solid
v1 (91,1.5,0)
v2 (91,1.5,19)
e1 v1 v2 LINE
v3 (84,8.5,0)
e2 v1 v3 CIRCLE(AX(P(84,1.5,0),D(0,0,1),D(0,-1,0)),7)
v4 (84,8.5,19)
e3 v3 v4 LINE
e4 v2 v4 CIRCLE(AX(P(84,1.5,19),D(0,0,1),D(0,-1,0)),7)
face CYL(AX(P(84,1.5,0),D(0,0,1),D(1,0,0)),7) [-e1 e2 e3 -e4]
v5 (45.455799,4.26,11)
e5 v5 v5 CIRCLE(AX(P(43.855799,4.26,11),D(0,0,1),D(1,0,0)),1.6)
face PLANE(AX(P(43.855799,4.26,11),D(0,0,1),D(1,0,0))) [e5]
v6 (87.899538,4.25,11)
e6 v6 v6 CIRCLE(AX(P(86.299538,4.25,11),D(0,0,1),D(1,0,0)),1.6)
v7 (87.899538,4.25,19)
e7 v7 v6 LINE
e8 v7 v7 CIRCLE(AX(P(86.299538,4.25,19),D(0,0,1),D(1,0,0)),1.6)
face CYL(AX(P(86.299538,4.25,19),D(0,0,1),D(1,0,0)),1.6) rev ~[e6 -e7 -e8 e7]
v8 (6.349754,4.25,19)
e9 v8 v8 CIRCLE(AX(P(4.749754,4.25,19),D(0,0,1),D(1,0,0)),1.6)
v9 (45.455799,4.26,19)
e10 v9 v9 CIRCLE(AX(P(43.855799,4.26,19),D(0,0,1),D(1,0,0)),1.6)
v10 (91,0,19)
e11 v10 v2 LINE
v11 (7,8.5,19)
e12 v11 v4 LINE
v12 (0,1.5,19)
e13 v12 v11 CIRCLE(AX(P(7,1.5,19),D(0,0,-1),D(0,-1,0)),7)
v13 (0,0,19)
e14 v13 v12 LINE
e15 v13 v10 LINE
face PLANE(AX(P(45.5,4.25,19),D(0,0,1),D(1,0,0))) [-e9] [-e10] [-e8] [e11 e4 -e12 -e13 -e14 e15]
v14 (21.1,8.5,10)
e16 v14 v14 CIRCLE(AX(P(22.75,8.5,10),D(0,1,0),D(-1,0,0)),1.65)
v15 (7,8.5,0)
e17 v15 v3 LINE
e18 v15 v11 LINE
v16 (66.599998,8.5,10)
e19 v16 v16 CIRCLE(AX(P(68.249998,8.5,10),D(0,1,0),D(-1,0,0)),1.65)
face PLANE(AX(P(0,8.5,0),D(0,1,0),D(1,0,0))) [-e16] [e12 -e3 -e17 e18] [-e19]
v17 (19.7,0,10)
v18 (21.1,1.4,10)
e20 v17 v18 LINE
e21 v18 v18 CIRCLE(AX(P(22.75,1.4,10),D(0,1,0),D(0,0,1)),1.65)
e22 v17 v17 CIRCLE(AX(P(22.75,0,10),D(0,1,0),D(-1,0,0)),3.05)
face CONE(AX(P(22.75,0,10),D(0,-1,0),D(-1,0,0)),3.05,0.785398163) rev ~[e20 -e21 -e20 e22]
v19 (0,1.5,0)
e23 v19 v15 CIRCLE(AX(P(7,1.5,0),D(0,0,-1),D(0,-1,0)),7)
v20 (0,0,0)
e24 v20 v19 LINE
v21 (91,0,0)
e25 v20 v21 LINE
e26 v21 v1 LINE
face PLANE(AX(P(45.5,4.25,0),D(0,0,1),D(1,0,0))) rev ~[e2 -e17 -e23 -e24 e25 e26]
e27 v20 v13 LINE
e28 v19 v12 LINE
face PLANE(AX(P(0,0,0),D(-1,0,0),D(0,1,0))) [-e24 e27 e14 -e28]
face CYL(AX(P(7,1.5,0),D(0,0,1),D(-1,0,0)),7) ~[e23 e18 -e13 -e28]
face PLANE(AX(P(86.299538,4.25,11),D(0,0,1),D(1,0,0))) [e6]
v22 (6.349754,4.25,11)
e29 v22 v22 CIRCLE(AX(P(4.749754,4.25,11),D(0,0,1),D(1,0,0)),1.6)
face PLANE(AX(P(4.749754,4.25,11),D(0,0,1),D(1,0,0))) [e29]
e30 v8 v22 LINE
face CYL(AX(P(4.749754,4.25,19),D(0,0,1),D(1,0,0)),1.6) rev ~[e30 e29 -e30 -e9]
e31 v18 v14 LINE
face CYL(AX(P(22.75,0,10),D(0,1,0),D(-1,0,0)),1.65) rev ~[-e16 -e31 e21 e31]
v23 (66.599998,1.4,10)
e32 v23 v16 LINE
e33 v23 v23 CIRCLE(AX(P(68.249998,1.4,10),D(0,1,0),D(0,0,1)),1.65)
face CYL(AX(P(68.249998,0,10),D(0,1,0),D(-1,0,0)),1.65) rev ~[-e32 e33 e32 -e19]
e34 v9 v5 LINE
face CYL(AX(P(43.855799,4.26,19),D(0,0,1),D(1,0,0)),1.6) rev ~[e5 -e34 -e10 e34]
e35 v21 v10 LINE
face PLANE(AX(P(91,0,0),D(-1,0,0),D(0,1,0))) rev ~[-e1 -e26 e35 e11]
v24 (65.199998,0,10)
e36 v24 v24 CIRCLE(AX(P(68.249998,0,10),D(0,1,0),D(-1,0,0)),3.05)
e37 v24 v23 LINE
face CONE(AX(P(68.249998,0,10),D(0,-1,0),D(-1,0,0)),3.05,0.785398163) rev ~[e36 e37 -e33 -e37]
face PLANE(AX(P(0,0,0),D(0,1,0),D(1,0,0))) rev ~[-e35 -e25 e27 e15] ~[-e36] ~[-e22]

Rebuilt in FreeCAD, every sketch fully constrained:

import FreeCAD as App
import Part
import Sketcher
from FreeCAD import Vector
Q = App.Units.Quantity


def edges_at(feature, points):
    """Names of the edges that pass closest to the given points."""
    edges = feature.Shape.Edges
    near = lambda p: min(range(len(edges)), key=lambda i: edges[i].distToShape(Part.Vertex(*p))[0])
    return sorted({f"Edge{near(p) + 1}" for p in points})


def add_polygon(sketch, points):
    """Adds a closed chain of lines whose ends are joined by coincident constraints."""
    first, n = sketch.GeometryCount, len(points)
    for a, b in zip(points, points[1:] + points[:1]):
        sketch.addGeometry(Part.LineSegment(App.Vector(*a, 0), App.Vector(*b, 0)), False)
    for i in range(n):
        sketch.addConstraint(Sketcher.Constraint("Coincident", first + i, 2, first + (i + 1) % n, 1))

doc = App.newDocument("Part")
body = doc.addObject("PartDesign::Body", "Body")

# Sketch on XY plane
sketch1 = doc.addObject("Sketcher::SketchObject", "Sketch")
body.addObject(sketch1)
sketch1.AttachmentSupport = (doc.XY_Plane, [""])
sketch1.MapMode = "FlatFace"
add_polygon(sketch1, [(0, 8.5), (0, 0), (91, 0), (91, 8.5)])  # lines 0-3
sketch1.addConstraint(Sketcher.Constraint("Vertical", 0))
sketch1.addConstraint(Sketcher.Constraint("Horizontal", 1))
sketch1.addConstraint(Sketcher.Constraint("Vertical", 2))
sketch1.addConstraint(Sketcher.Constraint("Horizontal", 3))
sketch1.addConstraint(Sketcher.Constraint("Coincident", 0, 2, -1, 1))
sketch1.addConstraint(Sketcher.Constraint("DistanceX", 1, 1, 1, 2, Q("91 mm")))
sketch1.addConstraint(Sketcher.Constraint("DistanceY", 0, 2, 0, 1, Q("8.5 mm")))
pad1 = doc.addObject("PartDesign::Pad", "Pad")
body.addObject(pad1)
pad1.Profile = sketch1
pad1.Length = 19
doc.recompute()

fillet = doc.addObject("PartDesign::Fillet", "Fillet")
body.addObject(fillet)
fillet.Base = (pad1, edges_at(pad1, [(91, 8.5, 9.5), (0, 8.5, 9.5)]))
fillet.Radius = 7

# Sketch on XY plane
sketch2 = doc.addObject("Sketcher::SketchObject", "Sketch001")
body.addObject(sketch2)
sketch2.AttachmentSupport = (doc.XY_Plane, [""])
sketch2.MapMode = "FlatFace"
sketch2.AttachmentOffset = App.Placement(Vector(0, 0, 19), App.Rotation())
sketch2.addGeometry(Part.Circle(Vector(4.749754, 4.25, 0), Vector(0, 0, 1), 1.6), False)
sketch2.addGeometry(Part.Circle(Vector(86.299538, 4.25, 0), Vector(0, 0, 1), 1.6), False)
sketch2.addGeometry(Part.Circle(Vector(43.855799, 4.26, 0), Vector(0, 0, 1), 1.6), False)
sketch2.addConstraint(Sketcher.Constraint("Equal", 0, 1))
sketch2.addConstraint(Sketcher.Constraint("Equal", 1, 2))
sketch2.addConstraint(Sketcher.Constraint("Horizontal", 0, 3, 1, 3))
sketch2.addConstraint(Sketcher.Constraint("Diameter", 0, Q("3.2 mm")))
sketch2.addConstraint(Sketcher.Constraint("DistanceY", -1, 1, 0, 3, Q("4.25 mm")))
sketch2.addConstraint(Sketcher.Constraint("DistanceY", -1, 1, 2, 3, Q("4.26 mm")))
sketch2.addConstraint(Sketcher.Constraint("DistanceX", -1, 1, 2, 3, Q("43.855799 mm")))
sketch2.addConstraint(Sketcher.Constraint("DistanceX", -1, 1, 1, 3, Q("86.299538 mm")))
sketch2.addConstraint(Sketcher.Constraint("DistanceX", -1, 1, 0, 3, Q("4.749754 mm")))
pocket1 = doc.addObject("PartDesign::Pocket", "Pocket")
body.addObject(pocket1)
pocket1.Profile = sketch2
pocket1.Length = 8

# Sketch on XZ plane
sketch3 = doc.addObject("Sketcher::SketchObject", "Sketch002")
body.addObject(sketch3)
sketch3.AttachmentSupport = (doc.XZ_Plane, [""])
sketch3.MapMode = "FlatFace"
sketch3.addGeometry(Part.Circle(Vector(22.75, 10, 0), Vector(0, 0, 1), 1.65), False)
sketch3.addGeometry(Part.Circle(Vector(68.249998, 10, 0), Vector(0, 0, 1), 1.65), False)
sketch3.addConstraint(Sketcher.Constraint("Equal", 0, 1))
sketch3.addConstraint(Sketcher.Constraint("Horizontal", 0, 3, 1, 3))
sketch3.addConstraint(Sketcher.Constraint("Diameter", 0, Q("3.3 mm")))
sketch3.addConstraint(Sketcher.Constraint("DistanceY", -1, 1, 0, 3, Q("10 mm")))
sketch3.addConstraint(Sketcher.Constraint("DistanceX", 0, 3, 1, 3, Q("45.499998 mm")))
sketch3.addConstraint(Sketcher.Constraint("DistanceX", -1, 1, 0, 3, Q("22.75 mm")))
doc.recompute()
hole = doc.addObject("PartDesign::Hole", "Hole")
body.addObject(hole)
hole.Profile = sketch3
hole.ThreadType = "None"
hole.Diameter = 3.3
hole.DepthType = "Dimension"
hole.Depth = 25
hole.DrillPoint = "Flat"
hole.HoleCutType = "Countersink"
hole.HoleCutDiameter = 6.1
hole.HoleCutCountersinkAngle = 90

doc.recompute()
